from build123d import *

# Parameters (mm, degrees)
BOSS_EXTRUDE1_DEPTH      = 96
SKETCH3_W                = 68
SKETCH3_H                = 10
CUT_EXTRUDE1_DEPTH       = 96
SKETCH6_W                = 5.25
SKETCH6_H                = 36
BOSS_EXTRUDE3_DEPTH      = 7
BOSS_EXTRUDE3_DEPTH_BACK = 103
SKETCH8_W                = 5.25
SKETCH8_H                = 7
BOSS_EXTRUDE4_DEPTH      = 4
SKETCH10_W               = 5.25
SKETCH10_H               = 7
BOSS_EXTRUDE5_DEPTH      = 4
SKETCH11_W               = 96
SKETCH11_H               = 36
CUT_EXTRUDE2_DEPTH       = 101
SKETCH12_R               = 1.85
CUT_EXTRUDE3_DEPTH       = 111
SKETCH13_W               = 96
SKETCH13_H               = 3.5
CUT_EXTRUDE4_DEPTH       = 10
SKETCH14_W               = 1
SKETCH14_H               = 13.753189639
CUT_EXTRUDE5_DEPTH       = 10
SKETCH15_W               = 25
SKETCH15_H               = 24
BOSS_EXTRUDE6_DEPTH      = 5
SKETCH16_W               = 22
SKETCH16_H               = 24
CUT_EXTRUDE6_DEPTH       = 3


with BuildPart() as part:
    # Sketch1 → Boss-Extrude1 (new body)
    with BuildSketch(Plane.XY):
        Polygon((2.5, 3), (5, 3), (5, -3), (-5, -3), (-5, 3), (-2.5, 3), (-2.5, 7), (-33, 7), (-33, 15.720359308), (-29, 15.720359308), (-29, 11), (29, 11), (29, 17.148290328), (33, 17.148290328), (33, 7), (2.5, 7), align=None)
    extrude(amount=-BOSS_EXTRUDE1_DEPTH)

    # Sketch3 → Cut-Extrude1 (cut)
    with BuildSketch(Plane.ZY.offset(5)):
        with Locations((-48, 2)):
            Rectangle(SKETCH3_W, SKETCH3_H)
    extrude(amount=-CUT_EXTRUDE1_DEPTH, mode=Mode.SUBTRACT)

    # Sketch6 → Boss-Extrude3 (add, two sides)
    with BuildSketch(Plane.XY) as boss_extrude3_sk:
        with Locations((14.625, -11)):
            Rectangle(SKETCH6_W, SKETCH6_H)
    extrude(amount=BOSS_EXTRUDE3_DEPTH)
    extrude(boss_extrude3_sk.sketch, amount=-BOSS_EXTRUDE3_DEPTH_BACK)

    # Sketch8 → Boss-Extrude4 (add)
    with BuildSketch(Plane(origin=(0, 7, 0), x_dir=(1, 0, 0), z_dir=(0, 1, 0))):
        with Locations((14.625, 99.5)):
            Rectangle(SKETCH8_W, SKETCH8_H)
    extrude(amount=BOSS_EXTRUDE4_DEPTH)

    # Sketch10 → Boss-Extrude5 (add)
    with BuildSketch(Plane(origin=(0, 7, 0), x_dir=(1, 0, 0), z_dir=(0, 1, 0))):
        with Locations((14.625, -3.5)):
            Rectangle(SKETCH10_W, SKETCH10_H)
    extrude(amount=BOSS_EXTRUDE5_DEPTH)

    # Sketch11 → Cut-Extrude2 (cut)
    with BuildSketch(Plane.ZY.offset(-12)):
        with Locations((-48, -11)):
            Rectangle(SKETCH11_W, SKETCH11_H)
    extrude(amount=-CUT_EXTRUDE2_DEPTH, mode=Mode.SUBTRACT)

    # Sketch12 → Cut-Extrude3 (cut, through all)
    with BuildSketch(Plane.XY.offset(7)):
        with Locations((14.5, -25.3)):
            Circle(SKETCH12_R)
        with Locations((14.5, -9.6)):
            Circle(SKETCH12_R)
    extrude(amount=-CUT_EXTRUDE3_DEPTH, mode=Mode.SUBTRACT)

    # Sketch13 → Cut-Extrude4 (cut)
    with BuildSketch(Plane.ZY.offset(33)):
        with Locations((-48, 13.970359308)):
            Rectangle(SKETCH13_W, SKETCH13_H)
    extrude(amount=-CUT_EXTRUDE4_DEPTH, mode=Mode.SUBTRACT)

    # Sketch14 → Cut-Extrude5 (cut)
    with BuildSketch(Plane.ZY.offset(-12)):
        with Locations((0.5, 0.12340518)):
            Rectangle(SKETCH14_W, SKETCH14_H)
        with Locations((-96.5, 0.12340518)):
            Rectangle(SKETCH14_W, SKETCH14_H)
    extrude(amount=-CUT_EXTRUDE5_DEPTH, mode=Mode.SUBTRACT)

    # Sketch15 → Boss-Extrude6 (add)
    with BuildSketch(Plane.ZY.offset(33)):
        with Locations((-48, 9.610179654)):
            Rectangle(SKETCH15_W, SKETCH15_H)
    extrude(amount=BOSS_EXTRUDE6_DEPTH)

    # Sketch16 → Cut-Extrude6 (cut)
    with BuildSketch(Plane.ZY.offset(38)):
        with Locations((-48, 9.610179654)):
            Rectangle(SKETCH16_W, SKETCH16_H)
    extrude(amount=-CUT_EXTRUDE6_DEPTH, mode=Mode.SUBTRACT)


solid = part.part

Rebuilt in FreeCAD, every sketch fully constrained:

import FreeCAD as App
import Part
import Sketcher

V = App.Vector

doc = App.newDocument("Part")
params = doc.addObject("Spreadsheet::Sheet", "Params")
for row, (alias, value) in enumerate([
    ("sketch1_width", "4 mm"),
    ("sketch1_width2", "58 mm"),
    ("sketch1_width3", "10 mm"),
    ("sketch1_height", "6 mm"),
    ("sketch1_width4", "2.5 mm"),
    ("pad1_length", "96 mm"),
    ("sketch2_width", "10 mm"),
    ("sketch2_height", "68 mm"),
    ("pocket1_length", "96 mm"),
    ("sketch3_height", "36 mm"),
    ("sketch3_width", "5.25 mm"),
    ("pad2_length", "7 mm"),
    ("pad2_length2", "103 mm"),
    ("sketch4_height", "7 mm"),
    ("sketch4_width", "5.25 mm"),
    ("pad3_length", "4 mm"),
    ("sketch5_height", "7 mm"),
    ("sketch5_width", "5.25 mm"),
    ("pad4_length", "4 mm"),
    ("sketch6_width", "36 mm"),
    ("sketch6_height", "96 mm"),
    ("pocket2_length", "101 mm"),
    ("sketch7_diameter", "3.7 mm"),
    ("sketch8_height", "96 mm"),
    ("sketch8_width", "3.5 mm"),
    ("pocket4_length", "10 mm"),
    ("sketch9_height", "1 mm"),
    ("pocket5_length", "10 mm"),
    ("sketch10_width", "24 mm"),
    ("sketch10_height", "25 mm"),
    ("pad5_length", "5 mm"),
    ("sketch11_width", "24 mm"),
    ("sketch11_height", "22 mm"),
    ("pocket6_length", "3 mm"),
], start=1):
    params.set(f"A{row}", alias)
    params.set(f"B{row}", "=" + value)
    params.setAlias(f"B{row}", alias)

body = doc.addObject("PartDesign::Body", "Body")

# Sketch on XY plane
sketch1 = doc.addObject("Sketcher::SketchObject", "Sketch")
body.addObject(sketch1)
sketch1.AttachmentSupport = (doc.XY_Plane, [""])
sketch1.MapMode = "FlatFace"
sketch1.addGeometry(Part.LineSegment(V(5, 3, 0), V(2.5, 3, 0)), False)
sketch1.addGeometry(Part.LineSegment(V(2.5, 3, 0), V(2.5, 7, 0)), False)
sketch1.addGeometry(Part.LineSegment(V(2.5, 7, 0), V(33, 7, 0)), False)
sketch1.addGeometry(Part.LineSegment(V(33, 7, 0), V(33, 17.1, 0)), False)
sketch1.addGeometry(Part.LineSegment(V(33, 17.1, 0), V(29, 17.1, 0)), False)
sketch1.addGeometry(Part.LineSegment(V(29, 17.1, 0), V(29, 11, 0)), False)
sketch1.addGeometry(Part.LineSegment(V(29, 11, 0), V(-29, 11, 0)), False)
sketch1.addGeometry(Part.LineSegment(V(-29, 11, 0), V(-29, 15.7, 0)), False)
sketch1.addGeometry(Part.LineSegment(V(-29, 15.7, 0), V(-33, 15.7, 0)), False)
sketch1.addGeometry(Part.LineSegment(V(-33, 15.7, 0), V(-33, 7, 0)), False)
sketch1.addGeometry(Part.LineSegment(V(-33, 7, 0), V(-2.5, 7, 0)), False)
sketch1.addGeometry(Part.LineSegment(V(-2.5, 7, 0), V(-2.5, 3, 0)), False)
sketch1.addGeometry(Part.LineSegment(V(-2.5, 3, 0), V(-5, 3, 0)), False)
sketch1.addGeometry(Part.LineSegment(V(-5, 3, 0), V(-5, -3, 0)), False)
sketch1.addGeometry(Part.LineSegment(V(-5, -3, 0), V(5, -3, 0)), False)
sketch1.addGeometry(Part.LineSegment(V(5, -3, 0), V(5, 3, 0)), False)
sketch1.addConstraint(Sketcher.Constraint("Coincident", 0, 2, 1, 1))
sketch1.addConstraint(Sketcher.Constraint("Coincident", 1, 2, 2, 1))
sketch1.addConstraint(Sketcher.Constraint("Coincident", 2, 2, 3, 1))
sketch1.addConstraint(Sketcher.Constraint("Coincident", 3, 2, 4, 1))
sketch1.addConstraint(Sketcher.Constraint("Coincident", 4, 2, 5, 1))
sketch1.addConstraint(Sketcher.Constraint("Coincident", 5, 2, 6, 1))
sketch1.addConstraint(Sketcher.Constraint("Coincident", 6, 2, 7, 1))
sketch1.addConstraint(Sketcher.Constraint("Coincident", 7, 2, 8, 1))
sketch1.addConstraint(Sketcher.Constraint("Coincident", 8, 2, 9, 1))
sketch1.addConstraint(Sketcher.Constraint("Coincident", 9, 2, 10, 1))
sketch1.addConstraint(Sketcher.Constraint("Coincident", 10, 2, 11, 1))
sketch1.addConstraint(Sketcher.Constraint("Coincident", 11, 2, 12, 1))
sketch1.addConstraint(Sketcher.Constraint("Coincident", 12, 2, 13, 1))
sketch1.addConstraint(Sketcher.Constraint("Coincident", 13, 2, 14, 1))
sketch1.addConstraint(Sketcher.Constraint("Coincident", 14, 2, 15, 1))
sketch1.addConstraint(Sketcher.Constraint("Coincident", 15, 2, 0, 1))
sketch1.addConstraint(Sketcher.Constraint("Horizontal", 0))
sketch1.addConstraint(Sketcher.Constraint("Vertical", 1))
sketch1.addConstraint(Sketcher.Constraint("Horizontal", 2))
sketch1.addConstraint(Sketcher.Constraint("Vertical", 3))
sketch1.addConstraint(Sketcher.Constraint("Horizontal", 4))
sketch1.addConstraint(Sketcher.Constraint("Vertical", 5))
sketch1.addConstraint(Sketcher.Constraint("Horizontal", 6))
sketch1.addConstraint(Sketcher.Constraint("Vertical", 7))
sketch1.addConstraint(Sketcher.Constraint("Horizontal", 8))
sketch1.addConstraint(Sketcher.Constraint("Vertical", 9))
sketch1.addConstraint(Sketcher.Constraint("Horizontal", 10))
sketch1.addConstraint(Sketcher.Constraint("Vertical", 11))
sketch1.addConstraint(Sketcher.Constraint("Horizontal", 12))
sketch1.addConstraint(Sketcher.Constraint("Vertical", 13))
sketch1.addConstraint(Sketcher.Constraint("Horizontal", 14))
sketch1.addConstraint(Sketcher.Constraint("Vertical", 15))
sketch1.addConstraint(Sketcher.Constraint("Symmetric", 12, 2, 14, 2, -1, 1))
sketch1.addConstraint(Sketcher.Constraint("Symmetric", 2, 2, 9, 2, -2))
sketch1.addConstraint(Sketcher.Constraint("Symmetric", 0, 2, 11, 2, -2))
sketch1.addConstraint(Sketcher.Constraint("Equal", 4, 8))
sketch1.addConstraint(Sketcher.Constraint("Equal", 8, 1))
sketch1.addConstraint(Sketcher.Constraint("DistanceX", 4, 2, 4, 1, 4.0))
sketch1.addConstraint(Sketcher.Constraint("DistanceX", 6, 2, 6, 1, 58.0))
sketch1.addConstraint(Sketcher.Constraint("DistanceX", 14, 1, 14, 2, 10.0))
sketch1.addConstraint(Sketcher.Constraint("DistanceY", 13, 2, 13, 1, 6.0))
sketch1.addConstraint(Sketcher.Constraint("DistanceX", 0, 2, 0, 1, 2.5))
sketch1.addConstraint(Sketcher.Constraint("DistanceY", -1, 1, 5, 2, 11.0))
sketch1.addConstraint(Sketcher.Constraint("DistanceY", 3, 1, 3, 2, 10.14829))
sketch1.addConstraint(Sketcher.Constraint("DistanceY", 7, 1, 7, 2, 4.720359))
sketch1.setExpression("Constraints[37]", "Params.sketch1_width")
sketch1.setExpression("Constraints[38]", "Params.sketch1_width2")
sketch1.setExpression("Constraints[39]", "Params.sketch1_width3")
sketch1.setExpression("Constraints[40]", "Params.sketch1_height")
sketch1.setExpression("Constraints[41]", "Params.sketch1_width4")
pad1 = doc.addObject("PartDesign::Pad", "Pad")
body.addObject(pad1)
pad1.Profile = sketch1
pad1.setExpression("Length", "Params.pad1_length")
pad1.Reversed = True

# Sketch on YZ plane
sketch2 = doc.addObject("Sketcher::SketchObject", "Sketch001")
body.addObject(sketch2)
sketch2.AttachmentSupport = (doc.YZ_Plane, [""])
sketch2.MapMode = "FlatFace"
sketch2.AttachmentOffset = App.Placement(V(0, 0, -5), App.Rotation())
sketch2.addGeometry(Part.LineSegment(V(7, -82, 0), V(-3, -82, 0)), False)
sketch2.addGeometry(Part.LineSegment(V(-3, -82, 0), V(-3, -14, 0)), False)
sketch2.addGeometry(Part.LineSegment(V(-3, -14, 0), V(7, -14, 0)), False)
sketch2.addGeometry(Part.LineSegment(V(7, -14, 0), V(7, -82, 0)), False)
sketch2.addConstraint(Sketcher.Constraint("Coincident", 0, 2, 1, 1))
sketch2.addConstraint(Sketcher.Constraint("Coincident", 1, 2, 2, 1))
sketch2.addConstraint(Sketcher.Constraint("Coincident", 2, 2, 3, 1))
sketch2.addConstraint(Sketcher.Constraint("Coincident", 3, 2, 0, 1))
sketch2.addConstraint(Sketcher.Constraint("Horizontal", 0))
sketch2.addConstraint(Sketcher.Constraint("Vertical", 1))
sketch2.addConstraint(Sketcher.Constraint("Horizontal", 2))
sketch2.addConstraint(Sketcher.Constraint("Vertical", 3))
sketch2.addConstraint(Sketcher.Constraint("DistanceX", 0, 2, 0, 1, 10.0))
sketch2.addConstraint(Sketcher.Constraint("DistanceY", 1, 1, 1, 2, 68.0))
sketch2.addConstraint(Sketcher.Constraint("DistanceX", 0, 2, -1, 1, 3.0))
sketch2.addConstraint(Sketcher.Constraint("DistanceY", 0, 2, -1, 1, 82.0))
sketch2.setExpression("Constraints[8]", "Params.sketch2_width")
sketch2.setExpression("Constraints[9]", "Params.sketch2_height")
pocket1 = doc.addObject("PartDesign::Pocket", "Pocket")
body.addObject(pocket1)
pocket1.Profile = sketch2
pocket1.setExpression("Length", "Params.pocket1_length")
pocket1.Reversed = True

# Sketch on XY plane
sketch3 = doc.addObject("Sketcher::SketchObject", "Sketch002")
body.addObject(sketch3)
sketch3.AttachmentSupport = (doc.XY_Plane, [""])
sketch3.MapMode = "FlatFace"
sketch3.addGeometry(Part.LineSegment(V(12, 7, 0), V(12, -29, 0)), False)
sketch3.addGeometry(Part.LineSegment(V(12, -29, 0), V(17, -29, 0)), False)
sketch3.addGeometry(Part.LineSegment(V(17, -29, 0), V(17, 7, 0)), False)
sketch3.addGeometry(Part.LineSegment(V(17, 7, 0), V(12, 7, 0)), False)
sketch3.addConstraint(Sketcher.Constraint("Coincident", 0, 2, 1, 1))
sketch3.addConstraint(Sketcher.Constraint("Coincident", 1, 2, 2, 1))
sketch3.addConstraint(Sketcher.Constraint("Coincident", 2, 2, 3, 1))
sketch3.addConstraint(Sketcher.Constraint("Coincident", 3, 2, 0, 1))
sketch3.addConstraint(Sketcher.Constraint("Vertical", 0))
sketch3.addConstraint(Sketcher.Constraint("Horizontal", 1))
sketch3.addConstraint(Sketcher.Constraint("Vertical", 2))
sketch3.addConstraint(Sketcher.Constraint("Horizontal", 3))
sketch3.addConstraint(Sketcher.Constraint("DistanceY", 0, 2, 0, 1, 36.0))
sketch3.addConstraint(Sketcher.Constraint("DistanceX", -1, 1, 0, 2, 12.0))
sketch3.addConstraint(Sketcher.Constraint("DistanceY", 0, 2, -1, 1, 29.0))
sketch3.addConstraint(Sketcher.Constraint("DistanceX", 1, 1, 1, 2, 5.25))
sketch3.setExpression("Constraints[8]", "Params.sketch3_height")
sketch3.setExpression("Constraints[11]", "Params.sketch3_width")
pad2 = doc.addObject("PartDesign::Pad", "Pad001")
body.addObject(pad2)
pad2.Profile = sketch3
pad2.Type = "TwoLengths"
pad2.setExpression("Length", "Params.pad2_length")
pad2.setExpression("Length2", "Params.pad2_length2")

# Sketch on XZ plane
sketch4 = doc.addObject("Sketcher::SketchObject", "Sketch003")
body.addObject(sketch4)
sketch4.AttachmentSupport = (doc.XZ_Plane, [""])
sketch4.MapMode = "FlatFace"
sketch4.AttachmentOffset = App.Placement(V(0, 0, -7), App.Rotation())
sketch4.addGeometry(Part.LineSegment(V(12, -103, 0), V(12, -96, 0)), False)
sketch4.addGeometry(Part.LineSegment(V(12, -96, 0), V(17, -96, 0)), False)
sketch4.addGeometry(Part.LineSegment(V(17, -96, 0), V(17, -103, 0)), False)
sketch4.addGeometry(Part.LineSegment(V(17, -103, 0), V(12, -103, 0)), False)
sketch4.addConstraint(Sketcher.Constraint("Coincident", 0, 2, 1, 1))
sketch4.addConstraint(Sketcher.Constraint("Coincident", 1, 2, 2, 1))
sketch4.addConstraint(Sketcher.Constraint("Coincident", 2, 2, 3, 1))
sketch4.addConstraint(Sketcher.Constraint("Coincident", 3, 2, 0, 1))
sketch4.addConstraint(Sketcher.Constraint("Vertical", 0))
sketch4.addConstraint(Sketcher.Constraint("Horizontal", 1))
sketch4.addConstraint(Sketcher.Constraint("Vertical", 2))
sketch4.addConstraint(Sketcher.Constraint("Horizontal", 3))
sketch4.addConstraint(Sketcher.Constraint("DistanceY", 0, 1, 0, 2, 7.0))
sketch4.addConstraint(Sketcher.Constraint("DistanceX", -1, 1, 0, 2, 12.0))
sketch4.addConstraint(Sketcher.Constraint("DistanceY", 0, 2, -1, 1, 96.0))
sketch4.addConstraint(Sketcher.Constraint("DistanceX", 1, 1, 1, 2, 5.25))
sketch4.setExpression("Constraints[8]", "Params.sketch4_height")
sketch4.setExpression("Constraints[11]", "Params.sketch4_width")
pad3 = doc.addObject("PartDesign::Pad", "Pad002")
body.addObject(pad3)
pad3.Profile = sketch4
pad3.setExpression("Length", "Params.pad3_length")
pad3.Reversed = True

# Sketch on XZ plane
sketch5 = doc.addObject("Sketcher::SketchObject", "Sketch004")
body.addObject(sketch5)
sketch5.AttachmentSupport = (doc.XZ_Plane, [""])
sketch5.MapMode = "FlatFace"
sketch5.AttachmentOffset = App.Placement(V(0, 0, -7), App.Rotation())
sketch5.addGeometry(Part.LineSegment(V(12, 0, 0), V(12, 7, 0)), False)
sketch5.addGeometry(Part.LineSegment(V(12, 7, 0), V(17, 7, 0)), False)
sketch5.addGeometry(Part.LineSegment(V(17, 7, 0), V(17, 0, 0)), False)
sketch5.addGeometry(Part.LineSegment(V(17, 0, 0), V(12, 0, 0)), False)
sketch5.addConstraint(Sketcher.Constraint("Coincident", 0, 2, 1, 1))
sketch5.addConstraint(Sketcher.Constraint("Coincident", 1, 2, 2, 1))
sketch5.addConstraint(Sketcher.Constraint("Coincident", 2, 2, 3, 1))
sketch5.addConstraint(Sketcher.Constraint("Coincident", 3, 2, 0, 1))
sketch5.addConstraint(Sketcher.Constraint("Vertical", 0))
sketch5.addConstraint(Sketcher.Constraint("Horizontal", 1))
sketch5.addConstraint(Sketcher.Constraint("Vertical", 2))
sketch5.addConstraint(Sketcher.Constraint("Horizontal", 3))
sketch5.addConstraint(Sketcher.Constraint("PointOnObject", 2, 2, -1))
sketch5.addConstraint(Sketcher.Constraint("DistanceY", 0, 1, 0, 2, 7.0))
sketch5.addConstraint(Sketcher.Constraint("DistanceX", -1, 1, 0, 2, 12.0))
sketch5.addConstraint(Sketcher.Constraint("DistanceX", 1, 1, 1, 2, 5.25))
sketch5.setExpression("Constraints[9]", "Params.sketch5_height")
sketch5.setExpression("Constraints[11]", "Params.sketch5_width")
pad4 = doc.addObject("PartDesign::Pad", "Pad003")
body.addObject(pad4)
pad4.Profile = sketch5
pad4.setExpression("Length", "Params.pad4_length")
pad4.Reversed = True

# Sketch on YZ plane
sketch6 = doc.addObject("Sketcher::SketchObject", "Sketch005")
body.addObject(sketch6)
sketch6.AttachmentSupport = (doc.YZ_Plane, [""])
sketch6.MapMode = "FlatFace"
sketch6.AttachmentOffset = App.Placement(V(0, 0, 12), App.Rotation())
sketch6.addGeometry(Part.LineSegment(V(7, -96, 0), V(-29, -96, 0)), False)
sketch6.addGeometry(Part.LineSegment(V(-29, -96, 0), V(-29, 0, 0)), False)
sketch6.addGeometry(Part.LineSegment(V(-29, 0, 0), V(7, 0, 0)), False)
sketch6.addGeometry(Part.LineSegment(V(7, 0, 0), V(7, -96, 0)), False)
sketch6.addConstraint(Sketcher.Constraint("Coincident", 0, 2, 1, 1))
sketch6.addConstraint(Sketcher.Constraint("Coincident", 1, 2, 2, 1))
sketch6.addConstraint(Sketcher.Constraint("Coincident", 2, 2, 3, 1))
sketch6.addConstraint(Sketcher.Constraint("Coincident", 3, 2, 0, 1))
sketch6.addConstraint(Sketcher.Constraint("Horizontal", 0))
sketch6.addConstraint(Sketcher.Constraint("Vertical", 1))
sketch6.addConstraint(Sketcher.Constraint("Horizontal", 2))
sketch6.addConstraint(Sketcher.Constraint("Vertical", 3))
sketch6.addConstraint(Sketcher.Constraint("PointOnObject", 1, 2, -1))
sketch6.addConstraint(Sketcher.Constraint("DistanceX", 0, 2, 0, 1, 36.0))
sketch6.addConstraint(Sketcher.Constraint("DistanceY", 1, 1, 1, 2, 96.0))
sketch6.addConstraint(Sketcher.Constraint("DistanceX", 0, 2, -1, 1, 29.0))
sketch6.setExpression("Constraints[9]", "Params.sketch6_width")
sketch6.setExpression("Constraints[10]", "Params.sketch6_height")
pocket2 = doc.addObject("PartDesign::Pocket", "Pocket001")
body.addObject(pocket2)
pocket2.Profile = sketch6
pocket2.setExpression("Length", "Params.pocket2_length")
pocket2.Reversed = True

# Sketch on XY plane
sketch7 = doc.addObject("Sketcher::SketchObject", "Sketch006")
body.addObject(sketch7)
sketch7.AttachmentSupport = (doc.XY_Plane, [""])
sketch7.MapMode = "FlatFace"
sketch7.AttachmentOffset = App.Placement(V(0, 0, 7), App.Rotation())
sketch7.addGeometry(Part.Circle(V(14.5, -25.3, 0), V(0, 0, 1), 1.9), False)
sketch7.addGeometry(Part.Circle(V(14.5, -9.6, 0), V(0, 0, 1), 1.9), False)
sketch7.addConstraint(Sketcher.Constraint("Equal", 0, 1))
sketch7.addConstraint(Sketcher.Constraint("Vertical", 0, 3, 1, 3))
sketch7.addConstraint(Sketcher.Constraint("Diameter", 0, 3.7))
sketch7.addConstraint(Sketcher.Constraint("DistanceX", -1, 1, 0, 3, 14.5))
sketch7.addConstraint(Sketcher.Constraint("DistanceY", 0, 3, -1, 1, 25.3))
sketch7.addConstraint(Sketcher.Constraint("DistanceY", 1, 3, -1, 1, 9.6))
sketch7.setExpression("Constraints[2]", "Params.sketch7_diameter")
pocket3 = doc.addObject("PartDesign::Pocket", "Pocket002")
body.addObject(pocket3)
pocket3.Profile = sketch7
pocket3.Type = "ThroughAll"

# Sketch on YZ plane
sketch8 = doc.addObject("Sketcher::SketchObject", "Sketch007")
body.addObject(sketch8)
sketch8.AttachmentSupport = (doc.YZ_Plane, [""])
sketch8.MapMode = "FlatFace"
sketch8.AttachmentOffset = App.Placement(V(0, 0, -33), App.Rotation())
sketch8.addGeometry(Part.LineSegment(V(15.7, -96, 0), V(12.2, -96, 0)), False)
sketch8.addGeometry(Part.LineSegment(V(12.2, -96, 0), V(12.2, 0, 0)), False)
sketch8.addGeometry(Part.LineSegment(V(12.2, 0, 0), V(15.7, 0, 0)), False)
sketch8.addGeometry(Part.LineSegment(V(15.7, 0, 0), V(15.7, -96, 0)), False)
sketch8.addConstraint(Sketcher.Constraint("Coincident", 0, 2, 1, 1))
sketch8.addConstraint(Sketcher.Constraint("Coincident", 1, 2, 2, 1))
sketch8.addConstraint(Sketcher.Constraint("Coincident", 2, 2, 3, 1))
sketch8.addConstraint(Sketcher.Constraint("Coincident", 3, 2, 0, 1))
sketch8.addConstraint(Sketcher.Constraint("Horizontal", 0))
sketch8.addConstraint(Sketcher.Constraint("Vertical", 1))
sketch8.addConstraint(Sketcher.Constraint("Horizontal", 2))
sketch8.addConstraint(Sketcher.Constraint("Vertical", 3))
sketch8.addConstraint(Sketcher.Constraint("PointOnObject", 1, 2, -1))
sketch8.addConstraint(Sketcher.Constraint("DistanceY", 1, 1, 1, 2, 96.0))
sketch8.addConstraint(Sketcher.Constraint("DistanceX", 0, 2, 0, 1, 3.5))
sketch8.addConstraint(Sketcher.Constraint("DistanceX", -1, 1, 0, 2, 12.220359))
sketch8.setExpression("Constraints[9]", "Params.sketch8_height")
sketch8.setExpression("Constraints[10]", "Params.sketch8_width")
pocket4 = doc.addObject("PartDesign::Pocket", "Pocket003")
body.addObject(pocket4)
pocket4.Profile = sketch8
pocket4.setExpression("Length", "Params.pocket4_length")
pocket4.Reversed = True

# Sketch on YZ plane
sketch9 = doc.addObject("Sketcher::SketchObject", "Sketch008")
body.addObject(sketch9)
sketch9.AttachmentSupport = (doc.YZ_Plane, [""])
sketch9.MapMode = "FlatFace"
sketch9.AttachmentOffset = App.Placement(V(0, 0, 12), App.Rotation())
sketch9.addGeometry(Part.LineSegment(V(7, 0, 0), V(-6.8, 0, 0)), False)
sketch9.addGeometry(Part.LineSegment(V(-6.8, 0, 0), V(-6.8, 1, 0)), False)
sketch9.addGeometry(Part.LineSegment(V(-6.8, 1, 0), V(7, 1, 0)), False)
sketch9.addGeometry(Part.LineSegment(V(7, 1, 0), V(7, 0, 0)), False)
sketch9.addGeometry(Part.LineSegment(V(7, -97, 0), V(-6.8, -97, 0)), False)
sketch9.addGeometry(Part.LineSegment(V(-6.8, -97, 0), V(-6.8, -96, 0)), False)
sketch9.addGeometry(Part.LineSegment(V(-6.8, -96, 0), V(7, -96, 0)), False)
sketch9.addGeometry(Part.LineSegment(V(7, -96, 0), V(7, -97, 0)), False)
sketch9.addConstraint(Sketcher.Constraint("Coincident", 0, 2, 1, 1))
sketch9.addConstraint(Sketcher.Constraint("Coincident", 1, 2, 2, 1))
sketch9.addConstraint(Sketcher.Constraint("Coincident", 2, 2, 3, 1))
sketch9.addConstraint(Sketcher.Constraint("Coincident", 3, 2, 0, 1))
sketch9.addConstraint(Sketcher.Constraint("Coincident", 4, 2, 5, 1))
sketch9.addConstraint(Sketcher.Constraint("Coincident", 5, 2, 6, 1))
sketch9.addConstraint(Sketcher.Constraint("Coincident", 6, 2, 7, 1))
sketch9.addConstraint(Sketcher.Constraint("Coincident", 7, 2, 4, 1))
sketch9.addConstraint(Sketcher.Constraint("Horizontal", 0))
sketch9.addConstraint(Sketcher.Constraint("Vertical", 1))
sketch9.addConstraint(Sketcher.Constraint("Horizontal", 2))
sketch9.addConstraint(Sketcher.Constraint("Vertical", 3))
sketch9.addConstraint(Sketcher.Constraint("Horizontal", 4))
sketch9.addConstraint(Sketcher.Constraint("Vertical", 5))
sketch9.addConstraint(Sketcher.Constraint("Horizontal", 6))
sketch9.addConstraint(Sketcher.Constraint("Vertical", 7))
sketch9.addConstraint(Sketcher.Constraint("PointOnObject", 0, 2, -1))
sketch9.addConstraint(Sketcher.Constraint("Vertical", 1, 2, 4, 2))
sketch9.addConstraint(Sketcher.Constraint("Vertical", 3, 2, 6, 2))
sketch9.addConstraint(Sketcher.Constraint("Equal", 3, 5))
sketch9.addConstraint(Sketcher.Constraint("DistanceY", 1, 1, 1, 2, 1.0))
sketch9.addConstraint(Sketcher.Constraint("DistanceX", -1, 1, 2, 2, 7.0))
sketch9.addConstraint(Sketcher.Constraint("DistanceY", 4, 2, -1, 1, 97.0))
sketch9.addConstraint(Sketcher.Constraint("DistanceX", 0, 2, 0, 1, 13.75319))
sketch9.setExpression("Constraints[20]", "Params.sketch9_height")
pocket5 = doc.addObject("PartDesign::Pocket", "Pocket004")
body.addObject(pocket5)
pocket5.Profile = sketch9
pocket5.setExpression("Length", "Params.pocket5_length")
pocket5.Reversed = True

# Sketch on YZ plane
sketch10 = doc.addObject("Sketcher::SketchObject", "Sketch009")
body.addObject(sketch10)
sketch10.AttachmentSupport = (doc.YZ_Plane, [""])
sketch10.MapMode = "FlatFace"
sketch10.AttachmentOffset = App.Placement(V(0, 0, -33), App.Rotation())
sketch10.addGeometry(Part.LineSegment(V(22, -60, 0), V(-2, -60, 0)), False)
sketch10.addGeometry(Part.LineSegment(V(-2, -60, 0), V(-2, -36, 0)), False)
sketch10.addGeometry(Part.LineSegment(V(-2, -36, 0), V(22, -36, 0)), False)
sketch10.addGeometry(Part.LineSegment(V(22, -36, 0), V(22, -60, 0)), False)
sketch10.addConstraint(Sketcher.Constraint("Coincident", 0, 2, 1, 1))
sketch10.addConstraint(Sketcher.Constraint("Coincident", 1, 2, 2, 1))
sketch10.addConstraint(Sketcher.Constraint("Coincident", 2, 2, 3, 1))
sketch10.addConstraint(Sketcher.Constraint("Coincident", 3, 2, 0, 1))
sketch10.addConstraint(Sketcher.Constraint("Horizontal", 0))
sketch10.addConstraint(Sketcher.Constraint("Vertical", 1))
sketch10.addConstraint(Sketcher.Constraint("Horizontal", 2))
sketch10.addConstraint(Sketcher.Constraint("Vertical", 3))
sketch10.addConstraint(Sketcher.Constraint("DistanceX", 0, 2, 0, 1, 24.0))
sketch10.addConstraint(Sketcher.Constraint("DistanceY", 1, 1, 1, 2, 25.0))
sketch10.addConstraint(Sketcher.Constraint("DistanceY", 0, 2, -1, 1, 60.5))
sketch10.addConstraint(Sketcher.Constraint("DistanceX", 0, 2, -1, 1, 2.38982))
sketch10.setExpression("Constraints[8]", "Params.sketch10_width")
sketch10.setExpression("Constraints[9]", "Params.sketch10_height")
pad5 = doc.addObject("PartDesign::Pad", "Pad004")
body.addObject(pad5)
pad5.Profile = sketch10
pad5.setExpression("Length", "Params.pad5_length")
pad5.Reversed = True

# Sketch on YZ plane
sketch11 = doc.addObject("Sketcher::SketchObject", "Sketch010")
body.addObject(sketch11)
sketch11.AttachmentSupport = (doc.YZ_Plane, [""])
sketch11.MapMode = "FlatFace"
sketch11.AttachmentOffset = App.Placement(V(0, 0, -38), App.Rotation())
sketch11.addGeometry(Part.LineSegment(V(22, -59, 0), V(-2, -59, 0)), False)
sketch11.addGeometry(Part.LineSegment(V(-2, -59, 0), V(-2, -37, 0)), False)
sketch11.addGeometry(Part.LineSegment(V(-2, -37, 0), V(22, -37, 0)), False)
sketch11.addGeometry(Part.LineSegment(V(22, -37, 0), V(22, -59, 0)), False)
sketch11.addConstraint(Sketcher.Constraint("Coincident", 0, 2, 1, 1))
sketch11.addConstraint(Sketcher.Constraint("Coincident", 1, 2, 2, 1))
sketch11.addConstraint(Sketcher.Constraint("Coincident", 2, 2, 3, 1))
sketch11.addConstraint(Sketcher.Constraint("Coincident", 3, 2, 0, 1))
sketch11.addConstraint(Sketcher.Constraint("Horizontal", 0))
sketch11.addConstraint(Sketcher.Constraint("Vertical", 1))
sketch11.addConstraint(Sketcher.Constraint("Horizontal", 2))
sketch11.addConstraint(Sketcher.Constraint("Vertical", 3))
sketch11.addConstraint(Sketcher.Constraint("DistanceX", 0, 2, 0, 1, 24.0))
sketch11.addConstraint(Sketcher.Constraint("DistanceY", 1, 1, 1, 2, 22.0))
sketch11.addConstraint(Sketcher.Constraint("DistanceY", 0, 2, -1, 1, 59.0))
sketch11.addConstraint(Sketcher.Constraint("DistanceX", 0, 2, -1, 1, 2.38982))
sketch11.setExpression("Constraints[8]", "Params.sketch11_width")
sketch11.setExpression("Constraints[9]", "Params.sketch11_height")
pocket6 = doc.addObject("PartDesign::Pocket", "Pocket005")
body.addObject(pocket6)
pocket6.Profile = sketch11
pocket6.setExpression("Length", "Params.pocket6_length")
pocket6.Reversed = True

doc.recompute()
